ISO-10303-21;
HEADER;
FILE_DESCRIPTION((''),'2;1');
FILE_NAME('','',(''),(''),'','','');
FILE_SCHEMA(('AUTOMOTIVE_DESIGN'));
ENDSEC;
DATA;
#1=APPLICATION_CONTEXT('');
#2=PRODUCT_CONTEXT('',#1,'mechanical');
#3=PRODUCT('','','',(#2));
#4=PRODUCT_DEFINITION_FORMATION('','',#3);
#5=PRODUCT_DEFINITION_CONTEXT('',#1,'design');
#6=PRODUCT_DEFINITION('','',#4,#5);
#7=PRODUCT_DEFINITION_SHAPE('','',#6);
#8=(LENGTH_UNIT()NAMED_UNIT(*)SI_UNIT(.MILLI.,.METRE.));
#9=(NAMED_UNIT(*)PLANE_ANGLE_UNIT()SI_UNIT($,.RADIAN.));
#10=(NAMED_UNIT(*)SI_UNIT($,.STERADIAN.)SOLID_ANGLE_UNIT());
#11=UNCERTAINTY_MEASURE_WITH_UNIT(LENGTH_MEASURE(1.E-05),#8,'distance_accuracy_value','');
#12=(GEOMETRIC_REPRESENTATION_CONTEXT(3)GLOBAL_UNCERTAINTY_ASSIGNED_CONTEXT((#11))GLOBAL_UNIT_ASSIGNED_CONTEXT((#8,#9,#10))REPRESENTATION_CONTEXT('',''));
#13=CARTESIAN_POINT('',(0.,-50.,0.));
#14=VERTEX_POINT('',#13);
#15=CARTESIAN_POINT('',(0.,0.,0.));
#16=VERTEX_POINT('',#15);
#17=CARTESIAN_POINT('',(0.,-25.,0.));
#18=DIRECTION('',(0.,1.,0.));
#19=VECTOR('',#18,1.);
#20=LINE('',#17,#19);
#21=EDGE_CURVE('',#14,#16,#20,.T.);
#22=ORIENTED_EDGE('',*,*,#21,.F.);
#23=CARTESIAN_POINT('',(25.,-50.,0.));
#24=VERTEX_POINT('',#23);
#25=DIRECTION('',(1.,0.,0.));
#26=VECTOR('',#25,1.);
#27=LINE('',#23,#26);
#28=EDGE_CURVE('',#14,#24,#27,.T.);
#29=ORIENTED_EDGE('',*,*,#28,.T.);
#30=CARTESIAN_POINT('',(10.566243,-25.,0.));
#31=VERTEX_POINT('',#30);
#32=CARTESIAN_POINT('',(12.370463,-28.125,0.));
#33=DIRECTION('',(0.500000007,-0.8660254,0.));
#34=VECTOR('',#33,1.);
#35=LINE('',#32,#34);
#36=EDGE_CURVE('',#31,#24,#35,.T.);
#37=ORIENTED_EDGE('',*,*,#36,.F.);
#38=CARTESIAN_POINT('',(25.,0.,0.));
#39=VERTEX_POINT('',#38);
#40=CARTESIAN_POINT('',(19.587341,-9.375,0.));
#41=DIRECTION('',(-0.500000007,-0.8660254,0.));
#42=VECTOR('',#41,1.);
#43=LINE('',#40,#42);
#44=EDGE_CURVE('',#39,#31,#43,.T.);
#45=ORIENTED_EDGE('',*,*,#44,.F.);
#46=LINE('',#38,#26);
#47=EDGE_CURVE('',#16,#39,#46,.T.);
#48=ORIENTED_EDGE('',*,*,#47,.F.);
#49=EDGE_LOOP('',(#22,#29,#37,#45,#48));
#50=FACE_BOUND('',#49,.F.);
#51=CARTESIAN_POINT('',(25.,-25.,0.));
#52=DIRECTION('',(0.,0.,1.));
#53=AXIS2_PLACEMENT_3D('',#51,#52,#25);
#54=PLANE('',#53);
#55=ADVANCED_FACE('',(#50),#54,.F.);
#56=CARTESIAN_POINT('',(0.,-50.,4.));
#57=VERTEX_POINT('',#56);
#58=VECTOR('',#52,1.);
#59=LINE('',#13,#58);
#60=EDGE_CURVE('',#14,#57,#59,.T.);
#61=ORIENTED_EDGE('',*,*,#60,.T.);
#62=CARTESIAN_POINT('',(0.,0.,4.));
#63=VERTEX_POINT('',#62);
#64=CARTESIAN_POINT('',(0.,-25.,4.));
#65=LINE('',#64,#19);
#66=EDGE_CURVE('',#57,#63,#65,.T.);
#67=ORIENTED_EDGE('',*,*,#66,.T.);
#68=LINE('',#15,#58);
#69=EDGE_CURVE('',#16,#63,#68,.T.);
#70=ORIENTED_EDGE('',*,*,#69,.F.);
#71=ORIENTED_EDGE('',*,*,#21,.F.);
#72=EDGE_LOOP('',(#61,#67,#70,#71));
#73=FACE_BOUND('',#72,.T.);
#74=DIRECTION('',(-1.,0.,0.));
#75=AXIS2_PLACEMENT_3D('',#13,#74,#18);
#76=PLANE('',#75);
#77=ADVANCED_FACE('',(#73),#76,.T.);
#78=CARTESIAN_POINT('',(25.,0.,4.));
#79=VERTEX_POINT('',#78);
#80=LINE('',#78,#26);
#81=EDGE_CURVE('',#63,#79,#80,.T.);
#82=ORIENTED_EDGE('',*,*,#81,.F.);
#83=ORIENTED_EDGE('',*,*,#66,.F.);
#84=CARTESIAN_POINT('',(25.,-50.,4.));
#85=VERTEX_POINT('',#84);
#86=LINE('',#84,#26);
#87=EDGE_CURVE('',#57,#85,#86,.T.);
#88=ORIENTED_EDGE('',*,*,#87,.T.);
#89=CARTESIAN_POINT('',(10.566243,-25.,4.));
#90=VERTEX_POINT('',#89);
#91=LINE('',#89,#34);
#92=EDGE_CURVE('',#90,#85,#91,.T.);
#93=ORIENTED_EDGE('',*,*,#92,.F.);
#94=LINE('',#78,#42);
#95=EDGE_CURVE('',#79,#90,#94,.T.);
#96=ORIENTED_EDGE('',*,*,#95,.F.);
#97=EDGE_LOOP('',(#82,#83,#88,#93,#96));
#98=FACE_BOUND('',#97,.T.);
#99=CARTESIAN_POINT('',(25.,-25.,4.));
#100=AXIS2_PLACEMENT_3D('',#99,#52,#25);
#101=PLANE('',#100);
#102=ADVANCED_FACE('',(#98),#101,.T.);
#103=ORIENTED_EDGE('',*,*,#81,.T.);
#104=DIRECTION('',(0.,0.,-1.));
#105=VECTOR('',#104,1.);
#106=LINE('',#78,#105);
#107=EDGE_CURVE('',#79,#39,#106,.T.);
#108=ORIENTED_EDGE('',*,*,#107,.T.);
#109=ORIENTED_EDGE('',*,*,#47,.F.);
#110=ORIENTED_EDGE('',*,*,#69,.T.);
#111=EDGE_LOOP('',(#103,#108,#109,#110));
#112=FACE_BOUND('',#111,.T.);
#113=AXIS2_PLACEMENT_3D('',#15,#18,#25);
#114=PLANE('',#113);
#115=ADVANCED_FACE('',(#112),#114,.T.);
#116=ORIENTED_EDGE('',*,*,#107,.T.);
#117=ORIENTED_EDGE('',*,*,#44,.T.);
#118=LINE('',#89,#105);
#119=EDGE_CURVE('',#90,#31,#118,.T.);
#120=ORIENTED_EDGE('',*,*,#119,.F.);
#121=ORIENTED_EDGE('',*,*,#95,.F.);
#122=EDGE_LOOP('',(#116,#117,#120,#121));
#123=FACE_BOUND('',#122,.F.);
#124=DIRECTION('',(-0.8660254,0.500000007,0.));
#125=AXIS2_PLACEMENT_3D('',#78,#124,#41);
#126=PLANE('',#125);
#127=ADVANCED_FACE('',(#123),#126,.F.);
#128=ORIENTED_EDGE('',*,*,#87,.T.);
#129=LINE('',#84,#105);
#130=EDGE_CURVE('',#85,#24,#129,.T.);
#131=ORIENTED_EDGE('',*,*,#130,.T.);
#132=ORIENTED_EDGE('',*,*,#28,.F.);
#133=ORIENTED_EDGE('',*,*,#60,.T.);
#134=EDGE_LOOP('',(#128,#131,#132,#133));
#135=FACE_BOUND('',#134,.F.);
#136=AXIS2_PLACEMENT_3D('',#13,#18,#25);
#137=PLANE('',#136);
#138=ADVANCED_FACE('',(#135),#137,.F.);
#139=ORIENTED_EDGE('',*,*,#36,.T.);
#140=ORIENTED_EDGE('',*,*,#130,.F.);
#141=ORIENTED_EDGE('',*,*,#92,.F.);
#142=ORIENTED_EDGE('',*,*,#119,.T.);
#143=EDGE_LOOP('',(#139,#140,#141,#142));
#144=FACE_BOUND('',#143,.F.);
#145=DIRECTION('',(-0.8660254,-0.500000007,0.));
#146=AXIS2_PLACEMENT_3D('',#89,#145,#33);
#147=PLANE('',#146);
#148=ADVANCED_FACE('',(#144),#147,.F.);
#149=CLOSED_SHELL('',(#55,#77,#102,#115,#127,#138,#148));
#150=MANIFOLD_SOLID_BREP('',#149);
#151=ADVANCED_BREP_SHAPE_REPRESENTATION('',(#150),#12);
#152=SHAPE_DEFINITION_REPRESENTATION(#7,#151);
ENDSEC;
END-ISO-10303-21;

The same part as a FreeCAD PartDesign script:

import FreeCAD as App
import Part
import Sketcher

V = App.Vector
Q = App.Units.Quantity


def add_polygon(sketch, points):
    """Adds a closed chain of lines whose ends are joined by coincident constraints."""
    first, n = sketch.GeometryCount, len(points)
    for a, b in zip(points, points[1:] + points[:1]):
        sketch.addGeometry(Part.LineSegment(App.Vector(*a, 0), App.Vector(*b, 0)), False)
    for i in range(n):
        sketch.addConstraint(Sketcher.Constraint("Coincident", first + i, 2, first + (i + 1) % n, 1))

doc = App.newDocument("Part")
body = doc.addObject("PartDesign::Body", "Body")

# Sketch on XY plane
sketch1 = body.newObject("Sketcher::SketchObject", "Sketch")
sketch1.AttachmentSupport = (doc.getObject("XY_Plane"), [""])
sketch1.MapMode = "FlatFace"
add_polygon(sketch1, [(0, 0), (0, -50), (50, -50), (50, 0)])  # lines 0-3
sketch1.addConstraint(Sketcher.Constraint("Vertical", 0))
sketch1.addConstraint(Sketcher.Constraint("Horizontal", 1))
sketch1.addConstraint(Sketcher.Constraint("Vertical", 2))
sketch1.addConstraint(Sketcher.Constraint("Horizontal", 3))
sketch1.addConstraint(Sketcher.Constraint("Coincident", 3, 2, -1, 1))
sketch1.addConstraint(Sketcher.Constraint("Equal", 3, 0))
sketch1.addConstraint(Sketcher.Constraint("DistanceX", 1, 1, 1, 2, Q("50 mm")))
pad1 = body.newObject("PartDesign::Pad", "Pad")
pad1.Profile = sketch1
pad1.Length = 4

# Sketch on XY plane
sketch2 = body.newObject("Sketcher::SketchObject", "Sketch001")
sketch2.AttachmentSupport = (doc.getObject("XY_Plane"), [""])
sketch2.MapMode = "FlatFace"
sketch2.AttachmentOffset = App.Placement(V(0, 0, 4), App.Rotation())
add_polygon(sketch2, [(50, 0), (25, 0), (10.566243, -25), (25, -50), (50, -50)])  # lines 0-4
sketch2.addConstraint(Sketcher.Constraint("Horizontal", 0))
sketch2.addConstraint(Sketcher.Constraint("Horizontal", 3))
sketch2.addConstraint(Sketcher.Constraint("Vertical", 4))
sketch2.addConstraint(Sketcher.Constraint("PointOnObject", 0, 2, -1))
sketch2.addConstraint(Sketcher.Constraint("Vertical", 0, 2, 2, 2))
sketch2.addConstraint(Sketcher.Constraint("Equal", 1, 2))
sketch2.addConstraint(Sketcher.Constraint("DistanceX", 0, 2, 0, 1, Q("25 mm")))
sketch2.addConstraint(Sketcher.Constraint("DistanceY", 4, 1, 4, 2, Q("50 mm")))
sketch2.addConstraint(Sketcher.Constraint("Angle", 1, Q("-120 deg")))
sketch2.addConstraint(Sketcher.Constraint("DistanceX", -1, 1, 0, 2, Q("25 mm")))
pocket1 = body.newObject("PartDesign::Pocket", "Pocket")
pocket1.Profile = sketch2
pocket1.Type = "ThroughAll"

doc.recompute()
